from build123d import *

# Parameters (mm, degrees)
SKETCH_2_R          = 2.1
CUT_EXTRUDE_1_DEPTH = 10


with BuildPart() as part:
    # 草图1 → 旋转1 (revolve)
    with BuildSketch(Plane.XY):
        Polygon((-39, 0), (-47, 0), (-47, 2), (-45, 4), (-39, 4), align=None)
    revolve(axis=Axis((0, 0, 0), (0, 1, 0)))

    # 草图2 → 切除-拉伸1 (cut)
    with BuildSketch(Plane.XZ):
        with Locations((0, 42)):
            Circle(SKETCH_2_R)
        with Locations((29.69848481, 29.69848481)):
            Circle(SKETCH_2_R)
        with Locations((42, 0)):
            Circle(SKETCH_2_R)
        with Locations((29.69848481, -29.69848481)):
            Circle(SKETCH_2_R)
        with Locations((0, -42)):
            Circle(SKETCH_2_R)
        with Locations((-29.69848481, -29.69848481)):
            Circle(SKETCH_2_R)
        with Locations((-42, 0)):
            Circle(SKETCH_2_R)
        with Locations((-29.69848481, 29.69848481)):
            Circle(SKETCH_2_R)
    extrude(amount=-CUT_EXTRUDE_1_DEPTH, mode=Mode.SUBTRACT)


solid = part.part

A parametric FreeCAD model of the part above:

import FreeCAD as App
import Part
import Sketcher


def add_polygon(sketch, points):
    """Adds a closed chain of lines whose ends are joined by coincident constraints."""
    first, n = sketch.GeometryCount, len(points)
    for a, b in zip(points, points[1:] + points[:1]):
        sketch.addGeometry(Part.LineSegment(App.Vector(*a, 0), App.Vector(*b, 0)), False)
    for i in range(n):
        sketch.addConstraint(Sketcher.Constraint("Coincident", first + i, 2, first + (i + 1) % n, 1))

doc = App.newDocument("Part")
body = doc.addObject("PartDesign::Body", "Body")

sketch1 = doc.addObject("Sketcher::SketchObject", "Sketch")
body.addObject(sketch1)
sketch1.AttachmentSupport = (doc.XY_Plane, [""])
sketch1.MapMode = "FlatFace"
add_polygon(sketch1, [(-47, 0), (-39, 0), (-39, 4), (-45, 4), (-47, 2)])
sketch1.addConstraint([
    Sketcher.Constraint("Horizontal", 0),
    Sketcher.Constraint("Vertical", 1),
    Sketcher.Constraint("Horizontal", 2),
    Sketcher.Constraint("Vertical", 4),
    Sketcher.Constraint("PointOnObject", 0, 2, -1),
    Sketcher.Constraint("DistanceX", 0, 1, 0, 2, 8.0),
    Sketcher.Constraint("DistanceX", 2, 2, 2, 1, 6.0),
    Sketcher.Constraint("DistanceY", 1, 1, 1, 2, 4.0),
    Sketcher.Constraint("DistanceY", 4, 2, 4, 1, 2.0),
    Sketcher.Constraint("DistanceX", 0, 2, -1, 1, 39.0),
])
revolution = doc.addObject("PartDesign::Revolution", "Revolution")
body.addObject(revolution)
revolution.Profile = sketch1
revolution.ReferenceAxis = (sketch1, ["V_Axis"])
revolution.Angle = 360

sketch2 = doc.addObject("Sketcher::SketchObject", "Sketch001")
body.addObject(sketch2)
sketch2.AttachmentSupport = (doc.XZ_Plane, [""])
sketch2.MapMode = "FlatFace"
sketch2.addGeometry([
    Part.Circle(App.Vector(0, 42, 0), App.Vector(0, 0, 1), 2.1),
    Part.Circle(App.Vector(29.7, 29.7, 0), App.Vector(0, 0, 1), 2.1),
    Part.Circle(App.Vector(42, 0, 0), App.Vector(0, 0, 1), 2.1),
    Part.Circle(App.Vector(29.7, -29.7, 0), App.Vector(0, 0, 1), 2.1),
    Part.Circle(App.Vector(0, -42, 0), App.Vector(0, 0, 1), 2.1),
    Part.Circle(App.Vector(-29.7, -29.7, 0), App.Vector(0, 0, 1), 2.1),
    Part.Circle(App.Vector(-42, 0, 0), App.Vector(0, 0, 1), 2.1),
    Part.Circle(App.Vector(-29.7, 29.7, 0), App.Vector(0, 0, 1), 2.1),
], False)
sketch2.addConstraint([
    Sketcher.Constraint("Equal", 0, 1),
    Sketcher.Constraint("Equal", 1, 2),
    Sketcher.Constraint("Equal", 2, 3),
    Sketcher.Constraint("Equal", 3, 4),
    Sketcher.Constraint("Equal", 4, 5),
    Sketcher.Constraint("Equal", 5, 6),
    Sketcher.Constraint("Equal", 6, 7),
    Sketcher.Constraint("Symmetric", 0, 3, 4, 3, -1, 1),
    Sketcher.Constraint("Symmetric", 1, 3, 5, 3, -1, 1),
    Sketcher.Constraint("Symmetric", 2, 3, 6, 3, -1, 1),
    Sketcher.Constraint("Symmetric", 3, 3, 7, 3, -1, 1),
    Sketcher.Constraint("Symmetric", 3, 3, 5, 3, -2),
    Sketcher.Constraint("PointOnObject", 0, 3, -2),
    Sketcher.Constraint("PointOnObject", 2, 3, -1),
    Sketcher.Constraint("Diameter", 0, 4.2),
    Sketcher.Constraint("DistanceY", -1, 1, 0, 3, 42.0),
    Sketcher.Constraint("DistanceX", -1, 1, 2, 3, 42.0),
    Sketcher.Constraint("DistanceY", 3, 3, 1, 3, 59.39697),
    Sketcher.Constraint("DistanceX", 5, 3, 3, 3, 59.39697),
])
pocket1 = doc.addObject("PartDesign::Pocket", "Pocket")
body.addObject(pocket1)
pocket1.Profile = sketch2
pocket1.Length = 10

doc.recompute()
